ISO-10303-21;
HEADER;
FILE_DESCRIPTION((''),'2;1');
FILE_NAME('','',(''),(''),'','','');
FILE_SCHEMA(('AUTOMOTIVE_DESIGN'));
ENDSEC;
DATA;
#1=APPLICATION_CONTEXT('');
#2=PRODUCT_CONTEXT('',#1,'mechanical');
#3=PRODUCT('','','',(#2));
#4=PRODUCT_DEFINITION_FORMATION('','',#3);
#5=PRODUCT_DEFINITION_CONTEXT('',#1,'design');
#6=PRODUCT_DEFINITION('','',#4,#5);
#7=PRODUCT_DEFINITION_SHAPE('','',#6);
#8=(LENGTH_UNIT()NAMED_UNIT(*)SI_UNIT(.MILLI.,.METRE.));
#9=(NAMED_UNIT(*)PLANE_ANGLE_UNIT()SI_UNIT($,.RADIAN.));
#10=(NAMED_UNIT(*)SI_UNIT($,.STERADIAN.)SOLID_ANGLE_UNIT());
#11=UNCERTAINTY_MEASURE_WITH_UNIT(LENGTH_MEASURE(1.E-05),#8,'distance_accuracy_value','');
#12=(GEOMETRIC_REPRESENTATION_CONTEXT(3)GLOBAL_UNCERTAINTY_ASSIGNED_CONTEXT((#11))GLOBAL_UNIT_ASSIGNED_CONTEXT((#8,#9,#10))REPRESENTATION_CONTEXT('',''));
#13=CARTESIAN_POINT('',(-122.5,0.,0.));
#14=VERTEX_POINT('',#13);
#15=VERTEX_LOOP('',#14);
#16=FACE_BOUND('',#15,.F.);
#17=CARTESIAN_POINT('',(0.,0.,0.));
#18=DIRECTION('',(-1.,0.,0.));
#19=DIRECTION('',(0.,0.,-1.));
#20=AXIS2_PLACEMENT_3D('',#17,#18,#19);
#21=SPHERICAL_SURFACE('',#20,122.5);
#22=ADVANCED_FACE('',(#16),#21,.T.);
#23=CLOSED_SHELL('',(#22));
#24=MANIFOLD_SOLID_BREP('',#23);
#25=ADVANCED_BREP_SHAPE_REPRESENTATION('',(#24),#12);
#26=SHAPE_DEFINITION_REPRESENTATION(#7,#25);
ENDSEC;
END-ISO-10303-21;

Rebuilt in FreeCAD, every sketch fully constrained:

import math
import FreeCAD as App
import Part
import Sketcher

V = App.Vector
Q = App.Units.Quantity

doc = App.newDocument("Part")
body = doc.addObject("PartDesign::Body", "Body")

sketch1 = body.newObject("Sketcher::SketchObject", "Sketch")
sketch1.AttachmentSupport = (doc.getObject("XZ_Plane"), [""])
sketch1.MapMode = "FlatFace"
sketch1.addGeometry([
    Part.ArcOfCircle(Part.Circle(V(0, 0, 0), V(0, 0, 1), 122), math.radians(180), math.radians(360)),
    Part.LineSegment(V(-122, 0, 0), V(122, 0, 0)),
], False)
sketch1.addConstraint([
    Sketcher.Constraint("Coincident", 0, 1, 1, 1),
    Sketcher.Constraint("Coincident", 1, 2, 0, 2),
    Sketcher.Constraint("Horizontal", 1),
    Sketcher.Constraint("Coincident", 0, 3, -1, 1),
    Sketcher.Constraint("PointOnObject", 0, 1, -1),
    Sketcher.Constraint("Radius", 0, Q("122.5 mm")),
])
revolution = body.newObject("PartDesign::Revolution", "Revolution")
revolution.Profile = sketch1
revolution.ReferenceAxis = (sketch1, ["H_Axis"])
revolution.Angle = 360

doc.recompute()
